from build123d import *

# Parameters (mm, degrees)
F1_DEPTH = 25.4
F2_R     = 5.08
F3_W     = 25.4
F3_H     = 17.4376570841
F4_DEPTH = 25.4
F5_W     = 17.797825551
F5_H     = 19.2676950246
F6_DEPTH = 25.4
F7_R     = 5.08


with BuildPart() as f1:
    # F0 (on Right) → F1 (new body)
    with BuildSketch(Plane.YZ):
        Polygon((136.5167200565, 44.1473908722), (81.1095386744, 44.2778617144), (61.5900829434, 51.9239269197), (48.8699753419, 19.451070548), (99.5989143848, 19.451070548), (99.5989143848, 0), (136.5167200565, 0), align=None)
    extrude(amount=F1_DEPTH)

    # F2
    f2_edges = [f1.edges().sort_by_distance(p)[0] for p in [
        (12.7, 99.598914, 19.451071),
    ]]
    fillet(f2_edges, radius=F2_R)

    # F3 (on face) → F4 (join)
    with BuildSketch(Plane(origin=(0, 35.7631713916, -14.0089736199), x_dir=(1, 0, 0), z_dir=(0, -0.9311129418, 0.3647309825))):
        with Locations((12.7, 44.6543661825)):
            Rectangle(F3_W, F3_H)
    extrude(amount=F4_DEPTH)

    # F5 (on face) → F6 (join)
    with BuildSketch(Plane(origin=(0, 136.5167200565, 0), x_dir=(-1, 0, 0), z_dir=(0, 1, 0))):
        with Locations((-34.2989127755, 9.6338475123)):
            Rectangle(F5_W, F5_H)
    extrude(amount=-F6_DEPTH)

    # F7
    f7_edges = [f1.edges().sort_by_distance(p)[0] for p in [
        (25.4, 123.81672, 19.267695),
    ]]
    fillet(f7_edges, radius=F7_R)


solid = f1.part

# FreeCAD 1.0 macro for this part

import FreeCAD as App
import Part
import Sketcher
Q = App.Units.Quantity


def edges_at(feature, points):
    """Names of the edges that pass closest to the given points."""
    edges = feature.Shape.Edges
    near = lambda p: min(range(len(edges)), key=lambda i: edges[i].distToShape(Part.Vertex(*p))[0])
    return sorted({f"Edge{near(p) + 1}" for p in points})

doc = App.newDocument("Part")
body = doc.addObject("PartDesign::Body", "Body")

sketch1 = body.newObject("Sketcher::SketchObject", "Sketch")
sketch1.AttachmentSupport = (doc.getObject("YZ_Plane"), [""])
sketch1.MapMode = "FlatFace"
sketch1.addGeometry([
    Part.LineSegment(App.Vector(137, 44, 0), App.Vector(81, 44, 0)),
    Part.LineSegment(App.Vector(81, 44, 0), App.Vector(62, 52, 0)),
    Part.LineSegment(App.Vector(62, 52, 0), App.Vector(49, 19, 0)),
    Part.LineSegment(App.Vector(49, 19, 0), App.Vector(100, 19, 0)),
    Part.LineSegment(App.Vector(100, 19, 0), App.Vector(100, 0, 0)),
    Part.LineSegment(App.Vector(100, 0, 0), App.Vector(137, 0, 0)),
    Part.LineSegment(App.Vector(137, 0, 0), App.Vector(137, 44, 0)),
], False)
sketch1.addConstraint([
    Sketcher.Constraint("Coincident", 0, 2, 1, 1),
    Sketcher.Constraint("Coincident", 1, 2, 2, 1),
    Sketcher.Constraint("Coincident", 2, 2, 3, 1),
    Sketcher.Constraint("Coincident", 3, 2, 4, 1),
    Sketcher.Constraint("Coincident", 4, 2, 5, 1),
    Sketcher.Constraint("Coincident", 5, 2, 6, 1),
    Sketcher.Constraint("Coincident", 6, 2, 0, 1),
    Sketcher.Constraint("Horizontal", 3),
    Sketcher.Constraint("Vertical", 4),
    Sketcher.Constraint("Horizontal", 5),
    Sketcher.Constraint("Vertical", 6),
    Sketcher.Constraint("PointOnObject", 4, 2, -1),
    Sketcher.Constraint("Perpendicular", 1, 2),
    Sketcher.Constraint("DistanceX", 3, 1, 3, 2, 50.728939),
    Sketcher.Constraint("DistanceY", 4, 2, 4, 1, 19.451071),
    Sketcher.Constraint("DistanceY", 6, 1, 6, 2, 44.147391),
    Sketcher.Constraint("DistanceX", 5, 1, 5, 2, 36.917806),
    Sketcher.Constraint("DistanceX", -1, 1, 0, 2, 81.109539),
    Sketcher.Constraint("DistanceY", -1, 1, 0, 2, 44.277862),
    Sketcher.Constraint("DistanceX", -1, 1, 5, 2, 136.51672),
    Sketcher.Constraint("DistanceX", 1, 2, 3, 2, 38.008831),
])
pad1 = body.newObject("PartDesign::Pad", "Pad")
pad1.Profile = sketch1
pad1.Length = Q("1 in")
doc.recompute()

fillet = body.newObject("PartDesign::Fillet", "Fillet")
fillet.Base = (pad1, edges_at(pad1, [(12.7, 99.599, 19.451)]))
fillet.Radius = Q("0.2 in")

sketch2 = body.newObject("Sketcher::SketchObject", "Sketch001")
sketch2.Placement = App.Placement(App.Vector(0, 35.763171, -14.008974), App.Rotation(App.Vector(1, 0, 0), App.Vector(0, 0.364730983, 0.931112942), App.Vector(0, -0.931112942, 0.364730983), "ZXY"))
sketch2.addGeometry([
    Part.LineSegment(App.Vector(0, 53, 0), App.Vector(0, 36, 0)),
    Part.LineSegment(App.Vector(0, 36, 0), App.Vector(25, 36, 0)),
    Part.LineSegment(App.Vector(25, 36, 0), App.Vector(25, 53, 0)),
    Part.LineSegment(App.Vector(25, 53, 0), App.Vector(0, 53, 0)),
], False)
sketch2.addConstraint([
    Sketcher.Constraint("Coincident", 0, 2, 1, 1),
    Sketcher.Constraint("Coincident", 1, 2, 2, 1),
    Sketcher.Constraint("Coincident", 2, 2, 3, 1),
    Sketcher.Constraint("Coincident", 3, 2, 0, 1),
    Sketcher.Constraint("Vertical", 0),
    Sketcher.Constraint("Horizontal", 1),
    Sketcher.Constraint("Vertical", 2),
    Sketcher.Constraint("Horizontal", 3),
    Sketcher.Constraint("PointOnObject", 0, 2, -2),
    Sketcher.Constraint("DistanceX", 1, 1, 1, 2, Q("1 in")),
    Sketcher.Constraint("DistanceY", 0, 2, 0, 1, 17.437657),
    Sketcher.Constraint("DistanceY", -1, 1, 0, 2, 35.935538),
])
pad2 = body.newObject("PartDesign::Pad", "Pad001")
pad2.Profile = sketch2
pad2.Length = Q("1 in")

sketch3 = body.newObject("Sketcher::SketchObject", "Sketch002")
sketch3.AttachmentSupport = (doc.getObject("XZ_Plane"), [""])
sketch3.MapMode = "FlatFace"
sketch3.AttachmentOffset = App.Placement(App.Vector(0, 0, -136.51672), App.Rotation())
sketch3.addGeometry([
    Part.LineSegment(App.Vector(43, 19, 0), App.Vector(43, 0, 0)),
    Part.LineSegment(App.Vector(43, 0, 0), App.Vector(25, 0, 0)),
    Part.LineSegment(App.Vector(25, 0, 0), App.Vector(25, 19, 0)),
    Part.LineSegment(App.Vector(25, 19, 0), App.Vector(43, 19, 0)),
], False)
sketch3.addConstraint([
    Sketcher.Constraint("Coincident", 0, 2, 1, 1),
    Sketcher.Constraint("Coincident", 1, 2, 2, 1),
    Sketcher.Constraint("Coincident", 2, 2, 3, 1),
    Sketcher.Constraint("Coincident", 3, 2, 0, 1),
    Sketcher.Constraint("Vertical", 0),
    Sketcher.Constraint("Horizontal", 1),
    Sketcher.Constraint("Vertical", 2),
    Sketcher.Constraint("Horizontal", 3),
    Sketcher.Constraint("PointOnObject", 0, 2, -1),
    Sketcher.Constraint("DistanceX", -1, 1, 1, 2, Q("1 in")),
    Sketcher.Constraint("DistanceX", 1, 2, 1, 1, 17.797826),
    Sketcher.Constraint("DistanceY", 0, 2, 0, 1, 19.267695),
])
pad3 = body.newObject("PartDesign::Pad", "Pad002")
pad3.Profile = sketch3
pad3.Length = Q("1 in")
doc.recompute()

fillet2 = body.newObject("PartDesign::Fillet", "Fillet001")
fillet2.Base = (pad3, edges_at(pad3, [(25.4, 123.817, 19.268)]))
fillet2.Radius = Q("0.2 in")

doc.recompute()
